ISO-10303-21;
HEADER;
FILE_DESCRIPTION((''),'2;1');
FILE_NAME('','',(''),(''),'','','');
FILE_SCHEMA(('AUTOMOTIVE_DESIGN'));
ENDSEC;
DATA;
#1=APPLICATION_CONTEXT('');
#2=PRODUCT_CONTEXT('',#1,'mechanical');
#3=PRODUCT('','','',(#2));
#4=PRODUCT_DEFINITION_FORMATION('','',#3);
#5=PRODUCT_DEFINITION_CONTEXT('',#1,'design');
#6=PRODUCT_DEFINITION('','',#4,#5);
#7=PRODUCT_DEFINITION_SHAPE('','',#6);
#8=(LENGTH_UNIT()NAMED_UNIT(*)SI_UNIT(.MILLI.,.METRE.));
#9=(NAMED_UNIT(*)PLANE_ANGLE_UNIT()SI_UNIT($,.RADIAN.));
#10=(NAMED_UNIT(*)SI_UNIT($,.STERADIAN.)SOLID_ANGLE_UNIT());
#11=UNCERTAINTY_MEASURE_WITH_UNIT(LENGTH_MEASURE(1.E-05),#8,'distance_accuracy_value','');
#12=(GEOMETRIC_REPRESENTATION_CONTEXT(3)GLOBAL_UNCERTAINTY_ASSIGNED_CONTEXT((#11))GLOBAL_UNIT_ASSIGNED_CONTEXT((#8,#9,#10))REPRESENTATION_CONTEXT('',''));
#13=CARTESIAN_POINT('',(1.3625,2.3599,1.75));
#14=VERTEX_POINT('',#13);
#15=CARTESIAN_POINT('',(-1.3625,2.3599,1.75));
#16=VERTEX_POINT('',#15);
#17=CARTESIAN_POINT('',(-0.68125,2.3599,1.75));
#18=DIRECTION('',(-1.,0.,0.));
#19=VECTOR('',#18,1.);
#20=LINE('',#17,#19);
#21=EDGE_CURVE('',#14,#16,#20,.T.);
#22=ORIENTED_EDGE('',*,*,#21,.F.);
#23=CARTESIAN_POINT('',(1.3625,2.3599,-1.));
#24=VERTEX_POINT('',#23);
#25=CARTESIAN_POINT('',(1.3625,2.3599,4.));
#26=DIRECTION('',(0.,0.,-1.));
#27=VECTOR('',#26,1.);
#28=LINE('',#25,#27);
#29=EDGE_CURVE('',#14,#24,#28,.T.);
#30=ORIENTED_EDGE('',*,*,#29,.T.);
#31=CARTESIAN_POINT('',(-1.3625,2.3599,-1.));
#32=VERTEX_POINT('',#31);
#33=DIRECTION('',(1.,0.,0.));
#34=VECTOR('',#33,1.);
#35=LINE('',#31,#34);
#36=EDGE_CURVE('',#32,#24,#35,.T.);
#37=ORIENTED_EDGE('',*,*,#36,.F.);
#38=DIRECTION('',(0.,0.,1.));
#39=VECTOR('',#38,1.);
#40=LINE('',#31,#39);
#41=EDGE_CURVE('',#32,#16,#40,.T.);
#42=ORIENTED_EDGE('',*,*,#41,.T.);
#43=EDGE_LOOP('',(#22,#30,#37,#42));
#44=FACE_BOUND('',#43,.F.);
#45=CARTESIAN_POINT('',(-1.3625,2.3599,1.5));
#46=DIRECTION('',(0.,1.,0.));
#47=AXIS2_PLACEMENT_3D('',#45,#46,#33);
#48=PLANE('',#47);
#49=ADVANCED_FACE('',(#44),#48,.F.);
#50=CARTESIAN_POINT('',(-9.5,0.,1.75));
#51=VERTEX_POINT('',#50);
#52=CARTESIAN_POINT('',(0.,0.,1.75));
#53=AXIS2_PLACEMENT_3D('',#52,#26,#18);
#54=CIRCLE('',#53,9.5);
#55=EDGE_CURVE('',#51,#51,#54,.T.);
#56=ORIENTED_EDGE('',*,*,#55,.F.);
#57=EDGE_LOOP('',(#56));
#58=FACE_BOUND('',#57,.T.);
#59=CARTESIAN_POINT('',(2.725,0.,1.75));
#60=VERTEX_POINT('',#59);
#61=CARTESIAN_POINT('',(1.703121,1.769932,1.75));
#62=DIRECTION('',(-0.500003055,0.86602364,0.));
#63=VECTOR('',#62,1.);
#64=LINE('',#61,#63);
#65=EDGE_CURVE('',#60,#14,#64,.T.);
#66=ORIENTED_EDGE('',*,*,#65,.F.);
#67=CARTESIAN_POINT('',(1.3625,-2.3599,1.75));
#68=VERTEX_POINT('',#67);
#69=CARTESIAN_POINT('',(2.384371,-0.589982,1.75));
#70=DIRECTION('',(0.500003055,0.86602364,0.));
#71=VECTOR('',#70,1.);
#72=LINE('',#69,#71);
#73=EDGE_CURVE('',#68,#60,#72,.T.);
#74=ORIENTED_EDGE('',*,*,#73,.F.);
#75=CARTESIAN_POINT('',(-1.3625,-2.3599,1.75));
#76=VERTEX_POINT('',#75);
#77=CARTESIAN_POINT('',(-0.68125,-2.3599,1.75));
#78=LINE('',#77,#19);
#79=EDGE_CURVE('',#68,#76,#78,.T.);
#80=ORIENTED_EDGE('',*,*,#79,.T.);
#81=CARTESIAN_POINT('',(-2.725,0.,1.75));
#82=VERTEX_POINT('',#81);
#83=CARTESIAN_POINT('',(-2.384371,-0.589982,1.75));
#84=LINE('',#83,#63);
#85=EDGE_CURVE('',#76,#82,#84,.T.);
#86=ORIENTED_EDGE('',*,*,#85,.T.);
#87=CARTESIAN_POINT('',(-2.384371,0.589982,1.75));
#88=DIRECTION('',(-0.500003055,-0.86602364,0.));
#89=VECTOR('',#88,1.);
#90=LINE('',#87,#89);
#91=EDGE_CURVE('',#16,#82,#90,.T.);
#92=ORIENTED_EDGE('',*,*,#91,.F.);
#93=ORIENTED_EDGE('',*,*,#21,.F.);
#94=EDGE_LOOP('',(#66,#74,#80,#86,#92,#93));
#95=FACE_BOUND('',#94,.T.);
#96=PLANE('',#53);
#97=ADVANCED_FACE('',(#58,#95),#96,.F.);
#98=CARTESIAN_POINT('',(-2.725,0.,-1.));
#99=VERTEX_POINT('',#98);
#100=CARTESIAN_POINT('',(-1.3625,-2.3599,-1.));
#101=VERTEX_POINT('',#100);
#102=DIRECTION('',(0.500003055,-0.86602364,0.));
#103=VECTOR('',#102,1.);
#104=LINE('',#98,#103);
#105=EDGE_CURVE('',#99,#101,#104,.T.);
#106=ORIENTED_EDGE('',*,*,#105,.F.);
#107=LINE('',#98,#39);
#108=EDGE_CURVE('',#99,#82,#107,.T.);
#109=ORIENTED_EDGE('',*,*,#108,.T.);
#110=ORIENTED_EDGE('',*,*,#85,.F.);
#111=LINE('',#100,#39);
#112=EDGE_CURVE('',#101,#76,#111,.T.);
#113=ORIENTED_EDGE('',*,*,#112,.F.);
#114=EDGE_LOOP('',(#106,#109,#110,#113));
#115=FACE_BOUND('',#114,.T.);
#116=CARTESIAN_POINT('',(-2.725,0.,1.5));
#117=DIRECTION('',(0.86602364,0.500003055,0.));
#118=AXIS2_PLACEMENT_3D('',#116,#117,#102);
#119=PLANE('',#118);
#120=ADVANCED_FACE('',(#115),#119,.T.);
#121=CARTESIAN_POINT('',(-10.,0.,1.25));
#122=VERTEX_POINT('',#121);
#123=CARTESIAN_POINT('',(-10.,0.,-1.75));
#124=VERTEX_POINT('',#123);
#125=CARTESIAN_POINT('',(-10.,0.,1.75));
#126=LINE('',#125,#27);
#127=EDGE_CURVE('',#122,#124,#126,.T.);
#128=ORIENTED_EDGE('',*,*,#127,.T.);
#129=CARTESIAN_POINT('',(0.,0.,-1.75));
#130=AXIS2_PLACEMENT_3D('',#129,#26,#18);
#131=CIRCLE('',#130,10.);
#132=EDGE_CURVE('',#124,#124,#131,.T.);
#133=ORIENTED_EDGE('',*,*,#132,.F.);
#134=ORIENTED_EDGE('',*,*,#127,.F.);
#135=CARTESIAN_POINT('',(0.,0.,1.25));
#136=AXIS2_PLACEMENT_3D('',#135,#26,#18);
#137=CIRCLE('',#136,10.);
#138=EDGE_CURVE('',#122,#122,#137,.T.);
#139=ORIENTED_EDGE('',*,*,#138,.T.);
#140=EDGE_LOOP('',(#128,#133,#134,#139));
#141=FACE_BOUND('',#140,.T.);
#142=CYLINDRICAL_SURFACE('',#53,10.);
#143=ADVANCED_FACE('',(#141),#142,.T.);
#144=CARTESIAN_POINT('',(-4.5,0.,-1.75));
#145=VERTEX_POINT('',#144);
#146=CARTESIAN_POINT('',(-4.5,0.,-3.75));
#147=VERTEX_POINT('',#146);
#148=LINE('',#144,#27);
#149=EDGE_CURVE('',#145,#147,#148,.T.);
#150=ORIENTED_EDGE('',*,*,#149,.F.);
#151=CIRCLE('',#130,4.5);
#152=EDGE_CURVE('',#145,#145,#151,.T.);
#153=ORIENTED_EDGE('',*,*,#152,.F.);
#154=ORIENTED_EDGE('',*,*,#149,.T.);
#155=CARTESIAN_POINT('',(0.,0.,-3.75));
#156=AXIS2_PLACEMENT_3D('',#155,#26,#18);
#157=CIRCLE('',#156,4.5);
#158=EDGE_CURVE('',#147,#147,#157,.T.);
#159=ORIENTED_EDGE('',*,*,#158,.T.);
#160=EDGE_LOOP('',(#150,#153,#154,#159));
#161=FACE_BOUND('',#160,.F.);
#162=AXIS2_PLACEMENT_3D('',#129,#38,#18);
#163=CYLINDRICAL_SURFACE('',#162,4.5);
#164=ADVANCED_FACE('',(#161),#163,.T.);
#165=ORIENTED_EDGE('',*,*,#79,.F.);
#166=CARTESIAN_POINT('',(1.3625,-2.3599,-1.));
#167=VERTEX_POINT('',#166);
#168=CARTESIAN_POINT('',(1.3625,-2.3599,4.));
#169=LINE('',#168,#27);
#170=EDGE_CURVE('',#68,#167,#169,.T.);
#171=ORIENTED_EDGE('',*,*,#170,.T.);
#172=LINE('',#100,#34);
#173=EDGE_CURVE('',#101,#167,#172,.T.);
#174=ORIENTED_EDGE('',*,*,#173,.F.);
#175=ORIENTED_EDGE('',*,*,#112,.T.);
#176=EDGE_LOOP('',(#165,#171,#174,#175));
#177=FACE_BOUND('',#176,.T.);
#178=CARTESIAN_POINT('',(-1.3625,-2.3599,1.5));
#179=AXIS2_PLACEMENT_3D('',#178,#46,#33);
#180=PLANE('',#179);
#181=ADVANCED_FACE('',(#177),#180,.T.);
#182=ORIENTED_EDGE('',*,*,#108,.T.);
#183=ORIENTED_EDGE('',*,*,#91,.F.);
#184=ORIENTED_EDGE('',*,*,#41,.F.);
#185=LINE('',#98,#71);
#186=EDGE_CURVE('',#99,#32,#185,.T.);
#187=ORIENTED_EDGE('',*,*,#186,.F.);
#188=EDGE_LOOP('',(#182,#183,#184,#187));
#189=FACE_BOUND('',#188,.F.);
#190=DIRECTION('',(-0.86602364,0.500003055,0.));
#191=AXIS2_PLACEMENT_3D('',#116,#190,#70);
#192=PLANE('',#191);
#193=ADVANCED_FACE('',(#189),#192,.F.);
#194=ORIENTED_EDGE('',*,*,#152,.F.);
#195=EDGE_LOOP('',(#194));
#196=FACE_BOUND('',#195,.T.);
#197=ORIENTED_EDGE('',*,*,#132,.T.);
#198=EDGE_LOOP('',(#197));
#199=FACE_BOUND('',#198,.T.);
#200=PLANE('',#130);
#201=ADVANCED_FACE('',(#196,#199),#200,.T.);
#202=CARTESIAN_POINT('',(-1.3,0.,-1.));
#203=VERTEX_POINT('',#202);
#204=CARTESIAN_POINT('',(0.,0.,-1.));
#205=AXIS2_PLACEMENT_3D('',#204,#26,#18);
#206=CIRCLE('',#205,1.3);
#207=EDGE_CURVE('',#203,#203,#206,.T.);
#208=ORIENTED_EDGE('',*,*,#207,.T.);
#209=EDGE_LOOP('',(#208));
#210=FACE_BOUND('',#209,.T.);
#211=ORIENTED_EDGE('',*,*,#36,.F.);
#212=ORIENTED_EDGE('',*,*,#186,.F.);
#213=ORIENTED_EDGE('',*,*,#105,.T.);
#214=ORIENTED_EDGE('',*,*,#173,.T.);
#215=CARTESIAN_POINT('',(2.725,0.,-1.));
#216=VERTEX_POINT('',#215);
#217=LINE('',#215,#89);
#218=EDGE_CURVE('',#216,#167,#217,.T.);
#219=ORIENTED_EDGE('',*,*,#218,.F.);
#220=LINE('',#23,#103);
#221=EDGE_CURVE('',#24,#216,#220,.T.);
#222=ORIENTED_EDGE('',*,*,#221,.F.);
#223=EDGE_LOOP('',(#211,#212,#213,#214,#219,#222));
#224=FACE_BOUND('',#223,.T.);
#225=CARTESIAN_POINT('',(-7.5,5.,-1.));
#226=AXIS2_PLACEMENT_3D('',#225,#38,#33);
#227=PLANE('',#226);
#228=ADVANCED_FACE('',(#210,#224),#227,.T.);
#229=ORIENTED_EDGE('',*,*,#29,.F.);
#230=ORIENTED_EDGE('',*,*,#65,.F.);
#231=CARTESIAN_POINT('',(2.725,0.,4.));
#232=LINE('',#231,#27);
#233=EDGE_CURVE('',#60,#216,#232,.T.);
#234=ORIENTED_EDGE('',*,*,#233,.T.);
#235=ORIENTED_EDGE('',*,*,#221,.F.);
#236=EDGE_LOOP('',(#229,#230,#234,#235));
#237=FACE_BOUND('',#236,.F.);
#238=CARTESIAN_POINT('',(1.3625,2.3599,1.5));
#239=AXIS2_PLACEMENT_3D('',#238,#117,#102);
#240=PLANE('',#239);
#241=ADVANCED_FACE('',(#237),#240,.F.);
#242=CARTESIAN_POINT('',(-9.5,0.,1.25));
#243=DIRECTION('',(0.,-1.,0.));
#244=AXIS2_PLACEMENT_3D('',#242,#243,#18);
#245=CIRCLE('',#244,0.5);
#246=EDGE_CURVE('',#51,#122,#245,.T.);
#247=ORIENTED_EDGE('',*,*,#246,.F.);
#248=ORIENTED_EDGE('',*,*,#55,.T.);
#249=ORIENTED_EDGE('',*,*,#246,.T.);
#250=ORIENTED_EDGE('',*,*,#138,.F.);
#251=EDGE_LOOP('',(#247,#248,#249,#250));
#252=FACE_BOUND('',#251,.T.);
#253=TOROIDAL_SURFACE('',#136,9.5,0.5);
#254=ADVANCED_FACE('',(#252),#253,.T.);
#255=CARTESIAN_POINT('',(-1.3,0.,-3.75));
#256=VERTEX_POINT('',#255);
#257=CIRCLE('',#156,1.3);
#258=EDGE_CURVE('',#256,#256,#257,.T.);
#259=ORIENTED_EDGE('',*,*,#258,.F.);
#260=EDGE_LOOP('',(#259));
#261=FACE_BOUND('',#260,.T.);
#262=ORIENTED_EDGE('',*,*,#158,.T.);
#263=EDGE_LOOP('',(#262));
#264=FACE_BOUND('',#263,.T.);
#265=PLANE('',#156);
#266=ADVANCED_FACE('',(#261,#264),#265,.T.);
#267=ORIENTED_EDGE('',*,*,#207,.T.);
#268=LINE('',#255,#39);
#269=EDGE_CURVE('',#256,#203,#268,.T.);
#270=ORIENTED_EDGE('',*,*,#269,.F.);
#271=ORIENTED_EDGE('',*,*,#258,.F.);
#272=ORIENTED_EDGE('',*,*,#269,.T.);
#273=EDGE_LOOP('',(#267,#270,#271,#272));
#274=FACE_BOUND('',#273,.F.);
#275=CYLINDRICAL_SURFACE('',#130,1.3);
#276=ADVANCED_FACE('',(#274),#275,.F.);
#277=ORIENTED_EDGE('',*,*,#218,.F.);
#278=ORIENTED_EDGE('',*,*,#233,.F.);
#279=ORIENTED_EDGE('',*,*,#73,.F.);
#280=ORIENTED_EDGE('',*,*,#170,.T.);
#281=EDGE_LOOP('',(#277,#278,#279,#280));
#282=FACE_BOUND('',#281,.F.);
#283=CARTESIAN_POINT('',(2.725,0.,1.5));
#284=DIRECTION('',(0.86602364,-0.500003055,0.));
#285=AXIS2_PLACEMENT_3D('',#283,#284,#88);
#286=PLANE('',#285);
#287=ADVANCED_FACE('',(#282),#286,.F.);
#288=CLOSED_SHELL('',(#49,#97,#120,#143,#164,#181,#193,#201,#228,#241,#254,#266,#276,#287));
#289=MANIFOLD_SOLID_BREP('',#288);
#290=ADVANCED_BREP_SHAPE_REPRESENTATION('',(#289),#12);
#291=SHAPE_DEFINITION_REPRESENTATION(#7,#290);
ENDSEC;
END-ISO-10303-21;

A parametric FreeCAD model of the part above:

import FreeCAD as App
import Part
import Sketcher

V = App.Vector
Q = App.Units.Quantity


def edges_at(feature, points):
    """Names of the edges that pass closest to the given points."""
    edges = feature.Shape.Edges
    near = lambda p: min(range(len(edges)), key=lambda i: edges[i].distToShape(Part.Vertex(*p))[0])
    return sorted({f"Edge{near(p) + 1}" for p in points})

doc = App.newDocument("Part")
body = doc.addObject("PartDesign::Body", "Body")

# Sketch on XZ plane
sketch1 = body.newObject("Sketcher::SketchObject", "Sketch")
sketch1.AttachmentSupport = (doc.getObject("XZ_Plane"), [""])
sketch1.MapMode = "FlatFace"
sketch1.addGeometry([
    Part.LineSegment(V(-10, 1.75, 0), V(0, 1.75, 0)),
    Part.LineSegment(V(0, 1.75, 0), V(0, -1.75, 0)),
    Part.LineSegment(V(0, -1.75, 0), V(-10, -1.75, 0)),
    Part.LineSegment(V(-10, -1.75, 0), V(-10, 1.75, 0)),
], False)
sketch1.addConstraint([
    Sketcher.Constraint("Coincident", 0, 2, 1, 1),
    Sketcher.Constraint("Coincident", 1, 2, 2, 1),
    Sketcher.Constraint("Coincident", 2, 2, 3, 1),
    Sketcher.Constraint("Coincident", 3, 2, 0, 1),
    Sketcher.Constraint("Horizontal", 0),
    Sketcher.Constraint("Vertical", 1),
    Sketcher.Constraint("Horizontal", 2),
    Sketcher.Constraint("Vertical", 3),
    Sketcher.Constraint("Symmetric", 0, 2, 1, 2, -1, 1),
    Sketcher.Constraint("DistanceY", 1, 2, 1, 1, 3.5),
    Sketcher.Constraint("DistanceX", 0, 1, 0, 2, 10.0),
])
revolution = body.newObject("PartDesign::Revolution", "Revolution")
revolution.Profile = sketch1
revolution.ReferenceAxis = (sketch1, ["V_Axis"])
revolution.Angle = 360

# Sketch on XY plane
sketch2 = body.newObject("Sketcher::SketchObject", "Sketch001")
sketch2.AttachmentSupport = (doc.getObject("XY_Plane"), [""])
sketch2.MapMode = "FlatFace"
sketch2.AttachmentOffset = App.Placement(V(0, 0, 1.5), App.Rotation())
sketch2.addGeometry([
    Part.LineSegment(V(1.3625, 2.3599, 0), V(-1.3625, 2.3599, 0)),  # 0
    Part.LineSegment(V(-1.3625, 2.3599, 0), V(-2.725, 0, 0)),  # 1
    Part.LineSegment(V(-2.725, 0, 0), V(-1.3625, -2.3599, 0)),  # 2
    Part.LineSegment(V(-1.3625, -2.3599, 0), V(1.3625, -2.3599, 0)),  # 3
    Part.LineSegment(V(1.3625, -2.3599, 0), V(2.725, 0, 0)),  # 4
    Part.LineSegment(V(2.725, 0, 0), V(1.3625, 2.3599, 0)),  # 5
], False)
sketch2.addConstraint([
    Sketcher.Constraint("Coincident", 0, 2, 1, 1),
    Sketcher.Constraint("Coincident", 1, 2, 2, 1),
    Sketcher.Constraint("Coincident", 2, 2, 3, 1),
    Sketcher.Constraint("Coincident", 3, 2, 4, 1),
    Sketcher.Constraint("Coincident", 4, 2, 5, 1),
    Sketcher.Constraint("Coincident", 5, 2, 0, 1),
    Sketcher.Constraint("Horizontal", 0),
    Sketcher.Constraint("Horizontal", 3),
    Sketcher.Constraint("Symmetric", 0, 2, 3, 2, -1, 1),
    Sketcher.Constraint("Symmetric", 1, 2, 4, 2, -1, 1),
    Sketcher.Constraint("PointOnObject", 1, 2, -1),
    Sketcher.Constraint("Parallel", 2, 5),
    Sketcher.Constraint("Vertical", 0, 2, 2, 2),
    Sketcher.Constraint("Angle", 1, Q("-120.0002 deg")),
    Sketcher.Constraint("DistanceX", 1, 2, 4, 2, 5.45),
    Sketcher.Constraint("DistanceX", 0, 2, 0, 1, 2.725),
])
pocket1 = body.newObject("PartDesign::Pocket", "Pocket")
pocket1.Profile = sketch2
pocket1.Type = "TwoLengths"
pocket1.Length = 2.5
pocket1.Length2 = 2.5
pocket1.Reversed = True

# Sketch on XY plane
sketch3 = body.newObject("Sketcher::SketchObject", "Sketch002")
sketch3.AttachmentSupport = (doc.getObject("XY_Plane"), [""])
sketch3.MapMode = "FlatFace"
sketch3.AttachmentOffset = App.Placement(V(0, 0, -1.75), App.Rotation())
sketch3.addGeometry([
    Part.Circle(V(0, 0, 0), V(0, 0, 1), 4.5),
    Part.Circle(V(0, 0, 0), V(0, 0, 1), 1.3),
], False)
sketch3.addConstraint([
    Sketcher.Constraint("Coincident", 0, 3, -1, 1),
    Sketcher.Constraint("Coincident", 1, 3, -1, 1),
    Sketcher.Constraint("Diameter", 0, 9.0),
    Sketcher.Constraint("Diameter", 1, 2.6),
])
pad1 = body.newObject("PartDesign::Pad", "Pad")
pad1.Profile = sketch3
pad1.Length = 2
pad1.Reversed = True

# Sketch on XY plane
sketch4 = body.newObject("Sketcher::SketchObject", "Sketch003")
sketch4.AttachmentSupport = (doc.getObject("XY_Plane"), [""])
sketch4.MapMode = "FlatFace"
sketch4.AttachmentOffset = App.Placement(V(0, 0, -1.75), App.Rotation())
sketch4.addGeometry(Part.Circle(V(0, 0, 0), V(0, 0, 1), 1.3), False)
sketch4.addConstraint([
    Sketcher.Constraint("Coincident", 0, 3, -1, 1),
    Sketcher.Constraint("Diameter", 0, 2.6),
])
pocket2 = body.newObject("PartDesign::Pocket", "Pocket001")
pocket2.Profile = sketch4
pocket2.Length = 12
pocket2.Midplane = True
doc.recompute()

fillet = body.newObject("PartDesign::Fillet", "Fillet")
fillet.Base = (pocket2, edges_at(pocket2, [(10, 0, 1.75)]))
fillet.Radius = 0.5

doc.recompute()
